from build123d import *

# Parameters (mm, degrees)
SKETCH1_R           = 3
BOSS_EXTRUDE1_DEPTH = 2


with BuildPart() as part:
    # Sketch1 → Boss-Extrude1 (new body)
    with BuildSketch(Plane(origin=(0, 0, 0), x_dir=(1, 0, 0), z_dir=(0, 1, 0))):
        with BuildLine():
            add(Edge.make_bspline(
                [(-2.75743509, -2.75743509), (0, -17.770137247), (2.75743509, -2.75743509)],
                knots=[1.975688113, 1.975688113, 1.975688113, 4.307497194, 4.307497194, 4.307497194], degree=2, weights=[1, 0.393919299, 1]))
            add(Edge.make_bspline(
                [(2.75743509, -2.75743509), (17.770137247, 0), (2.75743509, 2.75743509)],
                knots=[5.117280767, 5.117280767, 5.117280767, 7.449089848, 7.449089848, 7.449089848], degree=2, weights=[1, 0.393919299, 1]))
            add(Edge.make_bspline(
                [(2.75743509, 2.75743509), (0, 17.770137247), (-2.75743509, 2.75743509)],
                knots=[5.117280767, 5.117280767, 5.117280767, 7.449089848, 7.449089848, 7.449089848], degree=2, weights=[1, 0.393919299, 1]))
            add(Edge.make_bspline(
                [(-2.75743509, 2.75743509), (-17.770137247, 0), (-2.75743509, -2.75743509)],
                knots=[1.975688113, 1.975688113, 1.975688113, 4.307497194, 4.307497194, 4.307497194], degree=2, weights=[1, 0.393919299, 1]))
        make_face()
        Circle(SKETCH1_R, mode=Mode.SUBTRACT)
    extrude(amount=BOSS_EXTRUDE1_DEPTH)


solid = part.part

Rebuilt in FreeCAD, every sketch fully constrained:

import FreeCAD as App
import Part
import Sketcher
from FreeCAD import Vector

doc = App.newDocument("Part")
params = doc.addObject("Spreadsheet::Sheet", "Params")
for row, (alias, value) in enumerate([
    ("sketch1_diameter", "6 mm"),
    ("pad1_length", "2 mm"),
], start=1):
    params.set(f"A{row}", alias)
    params.set(f"B{row}", "=" + value)
    params.setAlias(f"B{row}", alias)

body = doc.addObject("PartDesign::Body", "Body")

# Sketch on XZ plane
sketch1 = body.newObject("Sketcher::SketchObject", "Sketch")
sketch1.AttachmentSupport = (doc.getObject("XZ_Plane"), [""])
sketch1.MapMode = "FlatFace"
sketch1.addGeometry([
    Part.BSplineCurve([Vector(-2.757435, 2.757435, 0), Vector(0, 17.770137, 0), Vector(2.757435, 2.757435, 0)], [3, 3], [1.975688113, 4.307497194], False, 2, [1, 0.393919299, 1], False),  # 0
    Part.BSplineCurve([Vector(2.757435, 2.757435, 0), Vector(17.770137, 0, 0), Vector(2.757435, -2.757435, 0)], [3, 3], [5.117280767, 7.449089848], False, 2, [1, 0.393919299, 1], False),  # 1
    Part.BSplineCurve([Vector(2.757435, -2.757435, 0), Vector(0, -17.770137, 0), Vector(-2.757435, -2.757435, 0)], [3, 3], [5.117280767, 7.449089848], False, 2, [1, 0.393919299, 1], False),  # 2
    Part.BSplineCurve([Vector(-2.757435, -2.757435, 0), Vector(-17.770137, 0, 0), Vector(-2.757435, 2.757435, 0)], [3, 3], [1.975688113, 4.307497194], False, 2, [1, 0.393919299, 1], False),  # 3
    Part.Circle(Vector(0, 0, 0), Vector(0, 0, 1), 3),  # 4
], False)
sketch1.addConstraint([
    Sketcher.Constraint("Block", 0),
    Sketcher.Constraint("Block", 1),
    Sketcher.Constraint("Block", 2),
    Sketcher.Constraint("Block", 3),
    Sketcher.Constraint("Coincident", 4, 3, -1, 1),
    Sketcher.Constraint("Diameter", 4, 6.0),
])
sketch1.setExpression("Constraints[5]", "Params.sketch1_diameter")
pad1 = body.newObject("PartDesign::Pad", "Pad")
pad1.Profile = sketch1
pad1.setExpression("Length", "Params.pad1_length")
pad1.Reversed = True

doc.recompute()
